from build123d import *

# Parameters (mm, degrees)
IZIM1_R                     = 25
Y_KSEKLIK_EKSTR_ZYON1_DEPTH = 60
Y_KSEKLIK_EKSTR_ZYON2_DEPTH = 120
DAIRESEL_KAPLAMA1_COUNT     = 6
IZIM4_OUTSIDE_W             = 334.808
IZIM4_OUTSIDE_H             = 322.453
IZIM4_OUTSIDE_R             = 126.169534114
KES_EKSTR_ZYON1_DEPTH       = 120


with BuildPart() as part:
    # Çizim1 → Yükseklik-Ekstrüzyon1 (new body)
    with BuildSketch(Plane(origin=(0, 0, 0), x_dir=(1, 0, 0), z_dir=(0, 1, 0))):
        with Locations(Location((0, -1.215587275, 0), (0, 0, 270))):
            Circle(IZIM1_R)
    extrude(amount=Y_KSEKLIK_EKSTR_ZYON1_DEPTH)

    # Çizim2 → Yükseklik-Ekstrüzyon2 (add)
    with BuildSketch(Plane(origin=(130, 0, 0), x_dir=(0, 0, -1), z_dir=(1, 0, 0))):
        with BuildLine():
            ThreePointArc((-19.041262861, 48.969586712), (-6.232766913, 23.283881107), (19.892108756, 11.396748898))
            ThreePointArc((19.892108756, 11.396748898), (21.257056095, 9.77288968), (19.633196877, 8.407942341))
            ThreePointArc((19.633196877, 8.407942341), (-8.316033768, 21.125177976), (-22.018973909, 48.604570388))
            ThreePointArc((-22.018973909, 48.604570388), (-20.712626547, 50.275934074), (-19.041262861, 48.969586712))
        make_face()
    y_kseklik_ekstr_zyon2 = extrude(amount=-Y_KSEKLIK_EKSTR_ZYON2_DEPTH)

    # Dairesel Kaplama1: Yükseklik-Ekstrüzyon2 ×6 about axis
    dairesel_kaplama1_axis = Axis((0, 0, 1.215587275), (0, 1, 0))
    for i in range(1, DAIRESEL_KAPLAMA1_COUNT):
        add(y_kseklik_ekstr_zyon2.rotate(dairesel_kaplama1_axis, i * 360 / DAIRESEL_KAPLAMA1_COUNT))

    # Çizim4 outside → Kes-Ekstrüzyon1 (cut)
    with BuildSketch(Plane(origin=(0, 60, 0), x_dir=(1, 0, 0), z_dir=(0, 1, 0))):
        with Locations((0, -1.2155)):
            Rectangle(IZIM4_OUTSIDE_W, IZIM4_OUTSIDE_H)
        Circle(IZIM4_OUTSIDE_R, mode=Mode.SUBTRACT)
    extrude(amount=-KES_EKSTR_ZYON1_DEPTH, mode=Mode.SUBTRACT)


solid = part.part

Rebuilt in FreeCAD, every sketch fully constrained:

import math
import FreeCAD as App
import Part
import Sketcher
Q = App.Units.Quantity

doc = App.newDocument("Part")
body = doc.addObject("PartDesign::Body", "Body")

sketch1 = doc.addObject("Sketcher::SketchObject", "Sketch")
body.addObject(sketch1)
sketch1.AttachmentSupport = (doc.XZ_Plane, [""])
sketch1.MapMode = "FlatFace"
sketch1.addGeometry(Part.Circle(App.Vector(0, 1.215587, 0), App.Vector(0, 0, 1), 25), False)
sketch1.addConstraint([
    Sketcher.Constraint("PointOnObject", 0, 3, -2),
    Sketcher.Constraint("Diameter", 0, Q("50 mm")),
    Sketcher.Constraint("DistanceY", -1, 1, 0, 3, Q("1.215587 mm")),
])
pad1 = doc.addObject("PartDesign::Pad", "Pad")
body.addObject(pad1)
pad1.Profile = sketch1
pad1.Length = 60
pad1.Reversed = True

sketch2 = doc.addObject("Sketcher::SketchObject", "Sketch001")
body.addObject(sketch2)
sketch2.AttachmentSupport = (doc.YZ_Plane, [""])
sketch2.MapMode = "FlatFace"
sketch2.AttachmentOffset = App.Placement(App.Vector(0, 0, 130), App.Rotation())
sketch2.addGeometry([
    Part.ArcOfCircle(Part.Circle(App.Vector(54.196643, -23.599743, 0), App.Vector(0, 0, 1), 42.960185), math.radians(96.988615), math.radians(175.048988)),
    Part.ArcOfCircle(Part.Circle(App.Vector(48.787079, 20.530118, 0), App.Vector(0, 0, 1), 1.5), math.radians(-83.011385), math.radians(96.988615)),
    Part.ArcOfCircle(Part.Circle(App.Vector(54.196643, -23.599743, 0), App.Vector(0, 0, 1), 45.960185), math.radians(96.988615), math.radians(175.048988)),
    Part.ArcOfCircle(Part.Circle(App.Vector(9.902346, -19.762653, 0), App.Vector(0, 0, 1), 1.5), math.radians(175.048988), math.radians(355.048988)),
], False)
sketch2.addConstraint([
    Sketcher.Constraint("Coincident", 0, 1, 1, 1),
    Sketcher.Constraint("Coincident", 1, 2, 2, 1),
    Sketcher.Constraint("Coincident", 2, 2, 3, 1),
    Sketcher.Constraint("Coincident", 3, 2, 0, 2),
    Sketcher.Constraint("Coincident", 2, 3, 0, 3),
    Sketcher.Constraint("Radius", 1, Q("1.5 mm")),
    Sketcher.Constraint("Radius", 0, Q("42.960185 mm")),
    Sketcher.Constraint("DistanceX", 2, 2, 0, 3, Q("45.788701 mm")),
    Sketcher.Constraint("DistanceX", -1, 1, 1, 3, Q("48.787079 mm")),
    Sketcher.Constraint("DistanceY", -1, 1, 1, 3, Q("20.530118 mm")),
    Sketcher.Constraint("DistanceX", -1, 1, 1, 2, Q("48.60457 mm")),
    Sketcher.Constraint("DistanceX", -1, 1, 3, 2, Q("11.396749 mm")),
    Sketcher.Constraint("DistanceY", 3, 2, -1, 1, Q("19.892109 mm")),
    Sketcher.Constraint("DistanceY", 0, 3, 3, 3, Q("3.83709 mm")),
    Sketcher.Constraint("DistanceX", 1, 3, 0, 1, Q("0.182508 mm")),
])
pad2 = doc.addObject("PartDesign::Pad", "Pad001")
body.addObject(pad2)
pad2.Profile = sketch2
pad2.Length = 120
pad2.Reversed = True
doc.recompute()

datumline = doc.addObject("PartDesign::Line", "DatumLine")
body.addObject(datumline)
datumline.Placement = App.Placement(App.Vector(0, 0, 1.215587), App.Rotation(App.Vector(0, 0, 1), App.Vector(0, 1, 0)))
polarpattern = doc.addObject("PartDesign::PolarPattern", "PolarPattern")
body.addObject(polarpattern)
polarpattern.Originals = [pad2]
polarpattern.Axis = (datumline, [""])
polarpattern.Angle = 360
polarpattern.Occurrences = 6
body.Tip = polarpattern

sketch3 = doc.addObject("Sketcher::SketchObject", "Sketch002")
body.addObject(sketch3)
sketch3.AttachmentSupport = (doc.XZ_Plane, [""])
sketch3.MapMode = "FlatFace"
sketch3.AttachmentOffset = App.Placement(App.Vector(0, 0, -60), App.Rotation())
sketch3.addGeometry([
    Part.LineSegment(App.Vector(-167.404, -160.011, 0), App.Vector(-167.404, 162.442, 0)),
    Part.LineSegment(App.Vector(-167.404, 162.442, 0), App.Vector(167.404, 162.442, 0)),
    Part.LineSegment(App.Vector(167.404, 162.442, 0), App.Vector(167.404, -160.011, 0)),
    Part.LineSegment(App.Vector(167.404, -160.011, 0), App.Vector(-167.404, -160.011, 0)),
    Part.Circle(App.Vector(0, 0, 0), App.Vector(0, 0, 1), 126.169534),
], False)
sketch3.addConstraint([
    Sketcher.Constraint("Coincident", 0, 2, 1, 1),
    Sketcher.Constraint("Coincident", 1, 2, 2, 1),
    Sketcher.Constraint("Coincident", 2, 2, 3, 1),
    Sketcher.Constraint("Coincident", 3, 2, 0, 1),
    Sketcher.Constraint("Vertical", 0),
    Sketcher.Constraint("Horizontal", 1),
    Sketcher.Constraint("Vertical", 2),
    Sketcher.Constraint("Horizontal", 3),
    Sketcher.Constraint("Coincident", 4, 3, -1, 1),
    Sketcher.Constraint("Diameter", 4, Q("252.339068 mm")),
    Sketcher.Constraint("DistanceX", 1, 1, 1, 2, Q("334.808 mm")),
    Sketcher.Constraint("DistanceY", 0, 1, 0, 2, Q("322.453 mm")),
    Sketcher.Constraint("DistanceX", 0, 2, -1, 1, Q("167.404 mm")),
    Sketcher.Constraint("DistanceY", -1, 1, 0, 2, Q("162.442 mm")),
])
pocket1 = doc.addObject("PartDesign::Pocket", "Pocket")
body.addObject(pocket1)
pocket1.Profile = sketch3
pocket1.Length = 120
pocket1.Reversed = True

doc.recompute()
